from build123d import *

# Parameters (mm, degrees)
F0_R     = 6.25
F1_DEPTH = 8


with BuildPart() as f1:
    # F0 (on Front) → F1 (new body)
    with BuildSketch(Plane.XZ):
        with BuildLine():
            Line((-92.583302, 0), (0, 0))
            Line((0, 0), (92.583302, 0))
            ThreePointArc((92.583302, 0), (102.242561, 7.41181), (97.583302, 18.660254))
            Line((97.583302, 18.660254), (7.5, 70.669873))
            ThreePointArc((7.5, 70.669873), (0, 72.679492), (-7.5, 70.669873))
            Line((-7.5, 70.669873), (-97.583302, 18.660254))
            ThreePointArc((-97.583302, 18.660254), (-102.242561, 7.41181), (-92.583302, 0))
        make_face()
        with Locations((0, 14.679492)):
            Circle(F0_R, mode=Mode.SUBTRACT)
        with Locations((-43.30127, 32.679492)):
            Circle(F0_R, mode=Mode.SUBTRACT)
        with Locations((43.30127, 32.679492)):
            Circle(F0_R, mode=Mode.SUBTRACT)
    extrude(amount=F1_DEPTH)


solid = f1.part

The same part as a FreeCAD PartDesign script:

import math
import FreeCAD as App
import Part
import Sketcher

V = App.Vector
Q = App.Units.Quantity

doc = App.newDocument("Part")
body = doc.addObject("PartDesign::Body", "Body")

# Sketch on XZ plane
sketch1 = body.newObject("Sketcher::SketchObject", "Sketch")
sketch1.AttachmentSupport = (doc.getObject("XZ_Plane"), [""])
sketch1.MapMode = "FlatFace"
sketch1.addGeometry([
    Part.LineSegment(V(-93, 0, 0), V(93, 0, 0)),  # 0
    Part.ArcOfCircle(Part.Circle(V(93, 10, 0), V(0, 0, 1), 10), math.radians(-90), math.radians(60)),  # 1
    Part.LineSegment(V(98, 19, 0), V(8, 71, 0)),  # 2
    Part.ArcOfCircle(Part.Circle(V(0, 58, 0), V(0, 0, 1), 15), math.radians(60), math.radians(120)),  # 3
    Part.LineSegment(V(-8, 71, 0), V(-98, 19, 0)),  # 4
    Part.ArcOfCircle(Part.Circle(V(-93, 10, 0), V(0, 0, 1), 10), math.radians(120), math.radians(270)),  # 5
    Part.Circle(V(0, 15, 0), V(0, 0, 1), 6),  # 6
    Part.Circle(V(-43, 33, 0), V(0, 0, 1), 6),  # 7
    Part.Circle(V(43, 33, 0), V(0, 0, 1), 6),  # 8
], False)
sketch1.addConstraint([
    Sketcher.Constraint("Tangent", 0, 2, 1, 1),
    Sketcher.Constraint("Tangent", 1, 2, 2, 1),
    Sketcher.Constraint("Tangent", 2, 2, 3, 1),
    Sketcher.Constraint("Tangent", 3, 2, 4, 1),
    Sketcher.Constraint("Tangent", 4, 2, 5, 1),
    Sketcher.Constraint("Tangent", 5, 2, 0, 1),
    Sketcher.Constraint("Horizontal", 0),
    Sketcher.Constraint("Equal", 1, 5),
    Sketcher.Constraint("Equal", 6, 7),
    Sketcher.Constraint("Equal", 7, 8),
    Sketcher.Constraint("Symmetric", 0, 2, 5, 2, -1, 1),
    Sketcher.Constraint("Symmetric", 7, 3, 8, 3, -2),
    Sketcher.Constraint("PointOnObject", 3, 3, -2),
    Sketcher.Constraint("PointOnObject", 6, 3, -2),
    Sketcher.Constraint("Radius", 1, 10.0),
    Sketcher.Constraint("Radius", 3, 15.0),
    Sketcher.Constraint("Diameter", 6, 12.5),
    Sketcher.Constraint("Angle", 2, Q("150 deg")),
    Sketcher.Constraint("DistanceY", 6, 3, 3, 3, 43.0),
    Sketcher.Constraint("DistanceY", 6, 3, 7, 3, 18.0),
    Sketcher.Constraint("DistanceX", 0, 1, 0, 2, 185.166604),
    Sketcher.Constraint("DistanceX", 7, 3, -1, 1, 43.30127),
])
pad1 = body.newObject("PartDesign::Pad", "Pad")
pad1.Profile = sketch1
pad1.Length = 8

doc.recompute()
